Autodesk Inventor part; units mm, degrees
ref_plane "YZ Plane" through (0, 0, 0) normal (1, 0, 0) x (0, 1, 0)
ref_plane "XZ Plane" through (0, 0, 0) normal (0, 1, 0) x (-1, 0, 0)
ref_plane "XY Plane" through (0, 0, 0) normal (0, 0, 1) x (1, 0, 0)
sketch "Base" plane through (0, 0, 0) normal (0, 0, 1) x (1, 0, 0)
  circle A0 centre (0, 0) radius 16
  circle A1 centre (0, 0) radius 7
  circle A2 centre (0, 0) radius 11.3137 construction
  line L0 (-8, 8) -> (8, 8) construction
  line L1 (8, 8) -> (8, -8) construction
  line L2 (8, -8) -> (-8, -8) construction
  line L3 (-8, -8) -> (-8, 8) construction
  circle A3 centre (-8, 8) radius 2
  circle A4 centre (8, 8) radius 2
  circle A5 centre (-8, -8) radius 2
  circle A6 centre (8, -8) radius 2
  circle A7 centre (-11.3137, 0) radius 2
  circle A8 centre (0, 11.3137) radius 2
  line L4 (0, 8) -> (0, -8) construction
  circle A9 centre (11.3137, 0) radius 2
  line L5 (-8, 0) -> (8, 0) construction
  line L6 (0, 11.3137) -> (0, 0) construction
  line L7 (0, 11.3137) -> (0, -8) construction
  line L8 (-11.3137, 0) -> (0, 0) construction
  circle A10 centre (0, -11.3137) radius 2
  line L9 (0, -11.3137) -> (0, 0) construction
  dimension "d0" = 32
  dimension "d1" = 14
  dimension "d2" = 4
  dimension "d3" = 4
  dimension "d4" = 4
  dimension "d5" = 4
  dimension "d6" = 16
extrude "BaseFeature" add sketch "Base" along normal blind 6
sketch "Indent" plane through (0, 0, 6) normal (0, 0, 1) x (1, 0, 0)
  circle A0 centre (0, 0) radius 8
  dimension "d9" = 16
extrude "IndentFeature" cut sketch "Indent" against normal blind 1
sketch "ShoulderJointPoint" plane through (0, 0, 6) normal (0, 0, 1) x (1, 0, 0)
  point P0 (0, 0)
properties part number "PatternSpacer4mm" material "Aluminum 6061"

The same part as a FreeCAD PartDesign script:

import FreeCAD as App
import Part
import Sketcher

V = App.Vector

doc = App.newDocument("Part")
body = doc.addObject("PartDesign::Body", "Body")

# Sketch on XY plane
sketch1 = body.newObject("Sketcher::SketchObject", "Sketch")
sketch1.AttachmentSupport = (doc.getObject("XY_Plane"), [""])
sketch1.MapMode = "FlatFace"
sketch1.addGeometry(Part.Circle(V(0, 0, 0), V(0, 0, 1), 16), False)
sketch1.addGeometry(Part.Circle(V(-8, -8, 0), V(0, 0, 1), 2), False)
sketch1.addGeometry(Part.Circle(V(0, -11.3, 0), V(0, 0, 1), 2), False)
sketch1.addGeometry(Part.Circle(V(8, -8, 0), V(0, 0, 1), 2), False)
sketch1.addGeometry(Part.Circle(V(-11.3, 0, 0), V(0, 0, 1), 2), False)
sketch1.addGeometry(Part.Circle(V(-8, 8, 0), V(0, 0, 1), 2), False)
sketch1.addGeometry(Part.Circle(V(0, 0, 0), V(0, 0, 1), 7), False)
sketch1.addGeometry(Part.Circle(V(11.3, 0, 0), V(0, 0, 1), 2), False)
sketch1.addGeometry(Part.Circle(V(0, 11.3, 0), V(0, 0, 1), 2), False)
sketch1.addGeometry(Part.Circle(V(8, 8, 0), V(0, 0, 1), 2), False)
sketch1.addConstraint(Sketcher.Constraint("Coincident", 0, 3, -1, 1))
sketch1.addConstraint(Sketcher.Constraint("Coincident", 6, 3, -1, 1))
sketch1.addConstraint(Sketcher.Constraint("Equal", 1, 2))
sketch1.addConstraint(Sketcher.Constraint("Equal", 2, 3))
sketch1.addConstraint(Sketcher.Constraint("Equal", 3, 4))
sketch1.addConstraint(Sketcher.Constraint("Equal", 4, 5))
sketch1.addConstraint(Sketcher.Constraint("Equal", 5, 7))
sketch1.addConstraint(Sketcher.Constraint("Equal", 7, 8))
sketch1.addConstraint(Sketcher.Constraint("Equal", 8, 9))
sketch1.addConstraint(Sketcher.Constraint("Symmetric", 3, 3, 5, 3, -1, 1))
sketch1.addConstraint(Sketcher.Constraint("Symmetric", 4, 3, 7, 3, -1, 1))
sketch1.addConstraint(Sketcher.Constraint("Symmetric", 2, 3, 8, 3, -1, 1))
sketch1.addConstraint(Sketcher.Constraint("Symmetric", 1, 3, 9, 3, -1, 1))
sketch1.addConstraint(Sketcher.Constraint("Symmetric", 1, 3, 3, 3, -2))
sketch1.addConstraint(Sketcher.Constraint("PointOnObject", 2, 3, -2))
sketch1.addConstraint(Sketcher.Constraint("PointOnObject", 4, 3, -1))
sketch1.addConstraint(Sketcher.Constraint("Diameter", 0, 32.0))
sketch1.addConstraint(Sketcher.Constraint("Diameter", 1, 4.0))
sketch1.addConstraint(Sketcher.Constraint("Diameter", 6, 14.0))
sketch1.addConstraint(Sketcher.Constraint("DistanceX", 1, 3, 3, 3, 16.0))
sketch1.addConstraint(Sketcher.Constraint("DistanceY", 1, 3, 5, 3, 16.0))
sketch1.addConstraint(Sketcher.Constraint("DistanceY", 2, 3, -1, 1, 11.3137))
sketch1.addConstraint(Sketcher.Constraint("DistanceX", 4, 3, -1, 1, 11.3137))
pad1 = body.newObject("PartDesign::Pad", "Pad")
pad1.Profile = sketch1
pad1.Length = 6

# Sketch on XY plane
sketch2 = body.newObject("Sketcher::SketchObject", "Sketch001")
sketch2.AttachmentSupport = (doc.getObject("XY_Plane"), [""])
sketch2.MapMode = "FlatFace"
sketch2.AttachmentOffset = App.Placement(V(0, 0, 6), App.Rotation())
sketch2.addGeometry(Part.Circle(V(0, 0, 0), V(0, 0, 1), 8), False)
sketch2.addConstraint(Sketcher.Constraint("Coincident", 0, 3, -1, 1))
sketch2.addConstraint(Sketcher.Constraint("Diameter", 0, 16.0))
pocket1 = body.newObject("PartDesign::Pocket", "Pocket")
pocket1.Profile = sketch2
pocket1.Length = 1

doc.recompute()
